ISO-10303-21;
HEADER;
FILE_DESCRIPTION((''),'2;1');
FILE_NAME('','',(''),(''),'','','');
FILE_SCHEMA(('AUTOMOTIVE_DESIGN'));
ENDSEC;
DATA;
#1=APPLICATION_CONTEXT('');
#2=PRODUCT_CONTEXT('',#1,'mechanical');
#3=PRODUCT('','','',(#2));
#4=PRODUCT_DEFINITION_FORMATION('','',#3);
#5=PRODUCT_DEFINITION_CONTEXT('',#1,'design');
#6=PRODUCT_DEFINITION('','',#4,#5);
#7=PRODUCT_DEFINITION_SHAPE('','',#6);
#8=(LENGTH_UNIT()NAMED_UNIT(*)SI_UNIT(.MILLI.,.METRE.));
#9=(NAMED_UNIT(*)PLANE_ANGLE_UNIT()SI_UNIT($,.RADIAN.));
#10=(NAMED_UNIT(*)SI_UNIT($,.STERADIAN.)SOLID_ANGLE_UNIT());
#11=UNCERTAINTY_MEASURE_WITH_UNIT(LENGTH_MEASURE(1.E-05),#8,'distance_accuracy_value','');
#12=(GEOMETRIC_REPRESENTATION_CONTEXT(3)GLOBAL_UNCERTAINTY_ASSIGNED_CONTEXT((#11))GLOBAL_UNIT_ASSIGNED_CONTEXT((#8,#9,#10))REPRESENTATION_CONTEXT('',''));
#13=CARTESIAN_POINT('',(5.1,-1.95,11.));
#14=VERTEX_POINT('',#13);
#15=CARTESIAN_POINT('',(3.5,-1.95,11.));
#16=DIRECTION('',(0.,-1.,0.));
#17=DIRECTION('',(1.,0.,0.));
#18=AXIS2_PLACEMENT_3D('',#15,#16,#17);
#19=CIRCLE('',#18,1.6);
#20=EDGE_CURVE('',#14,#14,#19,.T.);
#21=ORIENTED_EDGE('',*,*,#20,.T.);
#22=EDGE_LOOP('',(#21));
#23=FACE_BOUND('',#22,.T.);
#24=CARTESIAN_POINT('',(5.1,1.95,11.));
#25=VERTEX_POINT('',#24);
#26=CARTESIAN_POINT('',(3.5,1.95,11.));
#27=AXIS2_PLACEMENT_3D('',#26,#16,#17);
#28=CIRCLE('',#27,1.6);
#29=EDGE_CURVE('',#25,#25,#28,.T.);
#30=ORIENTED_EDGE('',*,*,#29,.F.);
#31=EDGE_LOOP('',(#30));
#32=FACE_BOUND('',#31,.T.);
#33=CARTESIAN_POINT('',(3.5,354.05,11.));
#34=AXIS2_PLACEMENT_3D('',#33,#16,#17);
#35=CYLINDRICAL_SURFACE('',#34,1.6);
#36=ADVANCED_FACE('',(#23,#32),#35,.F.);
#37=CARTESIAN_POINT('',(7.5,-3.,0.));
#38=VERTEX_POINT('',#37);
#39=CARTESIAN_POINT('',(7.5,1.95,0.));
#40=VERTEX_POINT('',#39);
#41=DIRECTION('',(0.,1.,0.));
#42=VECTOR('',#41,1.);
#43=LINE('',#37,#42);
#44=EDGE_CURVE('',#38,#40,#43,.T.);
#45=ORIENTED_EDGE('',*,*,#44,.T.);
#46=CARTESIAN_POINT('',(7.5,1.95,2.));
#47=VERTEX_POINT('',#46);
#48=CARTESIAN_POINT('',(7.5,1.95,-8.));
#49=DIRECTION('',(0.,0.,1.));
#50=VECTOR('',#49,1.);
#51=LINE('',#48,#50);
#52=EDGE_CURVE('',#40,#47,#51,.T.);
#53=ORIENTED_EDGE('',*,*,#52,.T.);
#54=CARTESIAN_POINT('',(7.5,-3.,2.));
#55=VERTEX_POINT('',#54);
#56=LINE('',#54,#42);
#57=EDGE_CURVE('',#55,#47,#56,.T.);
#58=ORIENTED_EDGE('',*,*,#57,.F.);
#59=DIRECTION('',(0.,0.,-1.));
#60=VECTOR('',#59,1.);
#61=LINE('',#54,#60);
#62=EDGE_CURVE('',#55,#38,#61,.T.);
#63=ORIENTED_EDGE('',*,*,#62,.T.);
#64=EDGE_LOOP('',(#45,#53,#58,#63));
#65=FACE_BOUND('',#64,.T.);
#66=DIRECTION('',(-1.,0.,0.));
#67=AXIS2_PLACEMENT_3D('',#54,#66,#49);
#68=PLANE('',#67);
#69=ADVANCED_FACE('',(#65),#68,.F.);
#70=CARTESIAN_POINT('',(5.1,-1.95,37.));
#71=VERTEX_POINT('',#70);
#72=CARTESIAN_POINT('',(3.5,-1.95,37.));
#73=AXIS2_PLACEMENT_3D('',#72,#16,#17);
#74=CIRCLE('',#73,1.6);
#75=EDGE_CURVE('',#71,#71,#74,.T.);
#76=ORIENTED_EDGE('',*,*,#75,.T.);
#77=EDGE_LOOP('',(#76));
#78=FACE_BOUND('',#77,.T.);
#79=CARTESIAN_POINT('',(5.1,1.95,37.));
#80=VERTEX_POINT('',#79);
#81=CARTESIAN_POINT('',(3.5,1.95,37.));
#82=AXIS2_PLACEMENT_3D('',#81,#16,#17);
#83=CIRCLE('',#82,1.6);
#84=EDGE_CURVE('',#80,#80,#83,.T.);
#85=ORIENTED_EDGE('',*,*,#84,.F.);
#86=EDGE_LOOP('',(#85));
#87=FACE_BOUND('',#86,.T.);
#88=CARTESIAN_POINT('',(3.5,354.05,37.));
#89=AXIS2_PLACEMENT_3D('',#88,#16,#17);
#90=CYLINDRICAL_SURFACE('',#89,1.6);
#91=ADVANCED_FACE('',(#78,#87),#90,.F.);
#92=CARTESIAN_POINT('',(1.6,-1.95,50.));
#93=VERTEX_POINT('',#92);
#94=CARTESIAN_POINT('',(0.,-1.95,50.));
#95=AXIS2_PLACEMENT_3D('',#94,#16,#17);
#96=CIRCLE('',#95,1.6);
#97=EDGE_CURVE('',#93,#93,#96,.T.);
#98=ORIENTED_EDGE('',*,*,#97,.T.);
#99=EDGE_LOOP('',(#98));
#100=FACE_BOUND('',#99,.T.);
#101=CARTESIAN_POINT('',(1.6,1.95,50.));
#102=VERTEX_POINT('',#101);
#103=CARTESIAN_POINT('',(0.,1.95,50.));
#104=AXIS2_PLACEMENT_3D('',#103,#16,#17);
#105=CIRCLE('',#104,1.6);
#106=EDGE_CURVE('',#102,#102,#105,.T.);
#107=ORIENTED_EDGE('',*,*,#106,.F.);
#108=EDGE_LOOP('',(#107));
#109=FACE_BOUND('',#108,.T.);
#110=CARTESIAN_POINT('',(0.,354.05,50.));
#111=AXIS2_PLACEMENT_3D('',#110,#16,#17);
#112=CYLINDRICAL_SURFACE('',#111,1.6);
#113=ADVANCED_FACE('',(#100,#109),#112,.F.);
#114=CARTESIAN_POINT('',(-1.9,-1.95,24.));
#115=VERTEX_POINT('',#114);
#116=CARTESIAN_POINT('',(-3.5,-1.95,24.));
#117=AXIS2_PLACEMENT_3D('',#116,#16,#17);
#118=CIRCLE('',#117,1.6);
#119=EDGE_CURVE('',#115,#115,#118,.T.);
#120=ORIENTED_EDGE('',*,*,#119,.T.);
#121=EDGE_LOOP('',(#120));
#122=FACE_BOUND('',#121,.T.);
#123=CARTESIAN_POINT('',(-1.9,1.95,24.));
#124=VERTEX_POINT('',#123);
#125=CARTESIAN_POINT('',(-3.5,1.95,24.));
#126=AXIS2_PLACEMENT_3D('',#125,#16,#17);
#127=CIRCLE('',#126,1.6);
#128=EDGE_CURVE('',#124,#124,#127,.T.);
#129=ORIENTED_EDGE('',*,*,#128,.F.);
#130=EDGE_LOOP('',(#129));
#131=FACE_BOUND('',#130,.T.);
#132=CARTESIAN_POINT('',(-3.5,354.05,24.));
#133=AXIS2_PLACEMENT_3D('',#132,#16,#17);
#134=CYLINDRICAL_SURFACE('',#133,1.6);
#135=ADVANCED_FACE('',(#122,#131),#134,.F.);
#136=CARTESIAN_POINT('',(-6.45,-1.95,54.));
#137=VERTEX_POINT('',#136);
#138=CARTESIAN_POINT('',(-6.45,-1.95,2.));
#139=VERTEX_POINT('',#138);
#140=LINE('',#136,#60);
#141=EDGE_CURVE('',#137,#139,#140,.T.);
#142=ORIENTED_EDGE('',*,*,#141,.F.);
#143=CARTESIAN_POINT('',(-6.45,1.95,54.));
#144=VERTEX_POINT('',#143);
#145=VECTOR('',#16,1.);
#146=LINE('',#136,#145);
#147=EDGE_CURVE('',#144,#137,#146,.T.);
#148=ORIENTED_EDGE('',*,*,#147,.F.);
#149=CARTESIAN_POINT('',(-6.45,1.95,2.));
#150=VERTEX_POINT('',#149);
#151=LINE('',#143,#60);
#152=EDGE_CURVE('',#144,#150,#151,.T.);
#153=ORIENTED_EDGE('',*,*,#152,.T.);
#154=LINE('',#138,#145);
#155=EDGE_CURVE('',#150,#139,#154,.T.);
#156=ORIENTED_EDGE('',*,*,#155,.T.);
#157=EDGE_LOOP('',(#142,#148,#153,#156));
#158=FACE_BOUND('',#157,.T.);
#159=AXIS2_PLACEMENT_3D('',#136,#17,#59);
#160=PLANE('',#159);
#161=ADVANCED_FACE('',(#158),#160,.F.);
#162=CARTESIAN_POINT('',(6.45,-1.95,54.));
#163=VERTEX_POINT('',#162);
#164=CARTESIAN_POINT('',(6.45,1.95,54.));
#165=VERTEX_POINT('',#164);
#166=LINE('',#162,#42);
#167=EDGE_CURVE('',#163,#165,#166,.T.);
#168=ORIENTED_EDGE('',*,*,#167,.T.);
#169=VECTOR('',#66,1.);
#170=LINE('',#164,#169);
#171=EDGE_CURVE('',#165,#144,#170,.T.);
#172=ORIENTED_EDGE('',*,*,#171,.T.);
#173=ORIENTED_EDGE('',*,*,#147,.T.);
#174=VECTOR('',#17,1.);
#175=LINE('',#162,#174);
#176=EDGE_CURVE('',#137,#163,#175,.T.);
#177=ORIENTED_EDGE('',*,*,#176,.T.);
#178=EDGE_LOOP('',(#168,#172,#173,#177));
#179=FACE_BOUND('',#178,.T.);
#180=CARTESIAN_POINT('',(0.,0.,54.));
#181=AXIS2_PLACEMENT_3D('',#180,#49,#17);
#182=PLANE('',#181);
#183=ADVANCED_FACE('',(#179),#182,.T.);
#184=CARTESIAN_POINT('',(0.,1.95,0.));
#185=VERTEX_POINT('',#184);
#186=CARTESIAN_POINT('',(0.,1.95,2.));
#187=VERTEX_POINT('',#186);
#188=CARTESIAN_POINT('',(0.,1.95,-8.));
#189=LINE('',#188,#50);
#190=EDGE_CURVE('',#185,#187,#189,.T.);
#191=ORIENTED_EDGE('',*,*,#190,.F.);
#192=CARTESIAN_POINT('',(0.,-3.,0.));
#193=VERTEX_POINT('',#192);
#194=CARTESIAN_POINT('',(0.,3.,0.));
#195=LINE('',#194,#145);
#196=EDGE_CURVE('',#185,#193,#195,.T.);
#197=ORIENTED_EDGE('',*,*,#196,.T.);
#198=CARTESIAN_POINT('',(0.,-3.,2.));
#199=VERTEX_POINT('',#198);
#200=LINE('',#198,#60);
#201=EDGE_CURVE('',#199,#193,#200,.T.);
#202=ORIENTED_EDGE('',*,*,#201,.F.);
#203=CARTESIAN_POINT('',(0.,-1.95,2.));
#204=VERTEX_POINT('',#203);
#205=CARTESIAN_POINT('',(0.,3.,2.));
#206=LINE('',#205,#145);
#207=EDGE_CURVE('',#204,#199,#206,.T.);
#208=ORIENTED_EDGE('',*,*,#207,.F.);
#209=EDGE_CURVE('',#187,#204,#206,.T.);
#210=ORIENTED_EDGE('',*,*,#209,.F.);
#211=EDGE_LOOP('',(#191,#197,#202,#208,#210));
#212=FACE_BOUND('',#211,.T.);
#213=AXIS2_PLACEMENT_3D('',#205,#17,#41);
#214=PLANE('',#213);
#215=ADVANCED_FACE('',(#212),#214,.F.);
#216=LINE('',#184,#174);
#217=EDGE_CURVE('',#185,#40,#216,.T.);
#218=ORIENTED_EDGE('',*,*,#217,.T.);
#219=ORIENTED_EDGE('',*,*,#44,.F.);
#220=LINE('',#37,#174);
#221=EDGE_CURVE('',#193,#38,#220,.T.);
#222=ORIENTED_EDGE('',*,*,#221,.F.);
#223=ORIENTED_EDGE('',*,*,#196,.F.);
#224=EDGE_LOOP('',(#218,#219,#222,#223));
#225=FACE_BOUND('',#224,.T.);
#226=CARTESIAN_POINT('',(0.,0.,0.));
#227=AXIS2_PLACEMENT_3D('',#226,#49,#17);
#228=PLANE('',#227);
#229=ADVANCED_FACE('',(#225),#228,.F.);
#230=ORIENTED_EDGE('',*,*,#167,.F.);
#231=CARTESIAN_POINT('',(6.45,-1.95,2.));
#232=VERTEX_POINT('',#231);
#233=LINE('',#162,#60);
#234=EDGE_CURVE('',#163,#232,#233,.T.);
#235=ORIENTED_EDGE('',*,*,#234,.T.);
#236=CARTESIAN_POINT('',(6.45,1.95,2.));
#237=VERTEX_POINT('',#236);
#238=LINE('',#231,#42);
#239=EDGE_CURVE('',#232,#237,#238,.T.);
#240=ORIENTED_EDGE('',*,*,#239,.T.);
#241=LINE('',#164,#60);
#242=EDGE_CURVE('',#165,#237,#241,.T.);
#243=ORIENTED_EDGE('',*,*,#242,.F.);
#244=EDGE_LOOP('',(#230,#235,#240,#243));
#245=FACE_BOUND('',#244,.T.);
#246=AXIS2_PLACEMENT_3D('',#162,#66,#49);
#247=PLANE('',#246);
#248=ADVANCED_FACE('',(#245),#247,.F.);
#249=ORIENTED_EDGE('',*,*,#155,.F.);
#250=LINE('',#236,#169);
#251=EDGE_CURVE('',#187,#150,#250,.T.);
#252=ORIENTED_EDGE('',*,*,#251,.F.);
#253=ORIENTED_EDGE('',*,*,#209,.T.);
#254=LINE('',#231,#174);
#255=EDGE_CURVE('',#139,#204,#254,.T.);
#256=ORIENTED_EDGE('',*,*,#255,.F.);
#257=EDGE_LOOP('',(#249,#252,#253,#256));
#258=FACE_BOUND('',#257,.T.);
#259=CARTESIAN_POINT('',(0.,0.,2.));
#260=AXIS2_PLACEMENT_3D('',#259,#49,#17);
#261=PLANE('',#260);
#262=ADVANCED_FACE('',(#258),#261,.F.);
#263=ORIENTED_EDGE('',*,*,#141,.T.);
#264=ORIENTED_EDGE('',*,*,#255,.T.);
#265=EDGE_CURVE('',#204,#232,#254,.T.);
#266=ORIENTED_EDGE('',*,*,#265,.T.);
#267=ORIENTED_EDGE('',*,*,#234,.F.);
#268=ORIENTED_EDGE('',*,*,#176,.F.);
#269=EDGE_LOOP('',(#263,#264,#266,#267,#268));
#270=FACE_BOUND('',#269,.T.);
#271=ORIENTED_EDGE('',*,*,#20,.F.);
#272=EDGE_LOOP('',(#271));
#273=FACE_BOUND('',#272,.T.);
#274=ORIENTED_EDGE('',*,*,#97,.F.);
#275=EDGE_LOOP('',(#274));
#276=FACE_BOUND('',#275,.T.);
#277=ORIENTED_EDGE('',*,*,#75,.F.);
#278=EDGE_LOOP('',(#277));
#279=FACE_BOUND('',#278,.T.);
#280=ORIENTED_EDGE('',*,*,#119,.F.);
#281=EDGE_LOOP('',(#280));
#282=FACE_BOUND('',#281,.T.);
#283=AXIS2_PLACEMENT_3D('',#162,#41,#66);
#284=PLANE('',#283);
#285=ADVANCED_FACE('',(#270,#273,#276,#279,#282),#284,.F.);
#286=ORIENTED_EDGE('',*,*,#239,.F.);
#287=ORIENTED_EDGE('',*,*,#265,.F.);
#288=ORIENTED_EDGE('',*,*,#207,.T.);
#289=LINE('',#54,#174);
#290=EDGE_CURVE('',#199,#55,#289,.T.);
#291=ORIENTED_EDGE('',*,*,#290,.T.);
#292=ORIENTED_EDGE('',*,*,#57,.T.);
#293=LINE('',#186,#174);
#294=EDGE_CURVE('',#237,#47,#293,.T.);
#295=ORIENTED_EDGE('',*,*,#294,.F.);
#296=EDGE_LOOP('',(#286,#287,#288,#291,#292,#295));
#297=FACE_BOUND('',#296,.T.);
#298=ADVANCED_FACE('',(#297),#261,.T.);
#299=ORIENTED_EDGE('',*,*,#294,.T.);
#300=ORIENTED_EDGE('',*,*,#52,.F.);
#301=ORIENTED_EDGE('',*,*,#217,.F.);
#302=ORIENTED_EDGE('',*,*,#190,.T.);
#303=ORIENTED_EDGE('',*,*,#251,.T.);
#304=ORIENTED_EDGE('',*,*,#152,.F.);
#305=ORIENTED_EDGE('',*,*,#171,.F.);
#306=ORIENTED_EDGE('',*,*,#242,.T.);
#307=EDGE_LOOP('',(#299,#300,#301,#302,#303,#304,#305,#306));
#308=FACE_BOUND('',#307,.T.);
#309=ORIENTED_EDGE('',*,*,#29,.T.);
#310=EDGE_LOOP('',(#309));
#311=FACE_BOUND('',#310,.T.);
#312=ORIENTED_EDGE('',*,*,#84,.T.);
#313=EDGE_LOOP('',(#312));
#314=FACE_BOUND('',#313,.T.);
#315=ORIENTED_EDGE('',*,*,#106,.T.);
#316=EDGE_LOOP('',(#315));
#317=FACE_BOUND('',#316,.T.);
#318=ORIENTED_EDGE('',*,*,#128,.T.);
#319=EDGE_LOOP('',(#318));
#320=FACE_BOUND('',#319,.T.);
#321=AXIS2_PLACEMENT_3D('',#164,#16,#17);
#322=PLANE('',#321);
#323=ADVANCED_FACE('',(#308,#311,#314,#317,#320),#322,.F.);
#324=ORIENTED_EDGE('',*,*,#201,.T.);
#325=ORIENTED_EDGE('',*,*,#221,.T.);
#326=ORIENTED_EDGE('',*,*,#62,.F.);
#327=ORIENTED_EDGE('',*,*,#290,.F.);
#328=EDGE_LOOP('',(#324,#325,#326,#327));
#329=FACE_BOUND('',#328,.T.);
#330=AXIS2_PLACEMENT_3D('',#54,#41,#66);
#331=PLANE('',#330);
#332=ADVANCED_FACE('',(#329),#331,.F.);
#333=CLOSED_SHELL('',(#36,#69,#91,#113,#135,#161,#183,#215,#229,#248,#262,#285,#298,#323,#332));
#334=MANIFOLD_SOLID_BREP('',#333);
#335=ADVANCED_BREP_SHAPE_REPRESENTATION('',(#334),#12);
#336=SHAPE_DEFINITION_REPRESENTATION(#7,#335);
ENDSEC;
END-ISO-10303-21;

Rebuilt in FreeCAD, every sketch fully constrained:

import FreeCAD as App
import Part
import Sketcher

V = App.Vector

doc = App.newDocument("Part")
body = doc.addObject("PartDesign::Body", "Body")

# Sketch on XY plane
sketch1 = body.newObject("Sketcher::SketchObject", "Sketch")
sketch1.AttachmentSupport = (doc.getObject("XY_Plane"), [""])
sketch1.MapMode = "FlatFace"
sketch1.addGeometry([
    Part.LineSegment(V(0, 3, 0), V(0, -3, 0)),
    Part.LineSegment(V(0, -3, 0), V(8, -3, 0)),
    Part.LineSegment(V(8, -3, 0), V(8, 3, 0)),
    Part.LineSegment(V(8, 3, 0), V(0, 3, 0)),
], False)
sketch1.addConstraint([
    Sketcher.Constraint("Coincident", 0, 2, 1, 1),
    Sketcher.Constraint("Coincident", 1, 2, 2, 1),
    Sketcher.Constraint("Coincident", 2, 2, 3, 1),
    Sketcher.Constraint("Coincident", 3, 2, 0, 1),
    Sketcher.Constraint("Vertical", 0),
    Sketcher.Constraint("Horizontal", 1),
    Sketcher.Constraint("Vertical", 2),
    Sketcher.Constraint("Horizontal", 3),
    Sketcher.Constraint("Symmetric", 0, 2, 3, 2, -1, 1),
    Sketcher.Constraint("DistanceY", 0, 2, 0, 1, 6.0),
    Sketcher.Constraint("DistanceX", 1, 1, 1, 2, 7.5),
])
pad1 = body.newObject("PartDesign::Pad", "Pad")
pad1.Profile = sketch1
pad1.Length = 2

# Sketch on XY plane
sketch2 = body.newObject("Sketcher::SketchObject", "Sketch001")
sketch2.AttachmentSupport = (doc.getObject("XY_Plane"), [""])
sketch2.MapMode = "FlatFace"
sketch2.AttachmentOffset = App.Placement(V(0, 0, 2), App.Rotation())
sketch2.addGeometry([
    Part.LineSegment(V(-6.5, 1.9, 0), V(-6.5, -1.9, 0)),
    Part.LineSegment(V(-6.5, -1.9, 0), V(6.5, -1.9, 0)),
    Part.LineSegment(V(6.5, -1.9, 0), V(6.5, 1.9, 0)),
    Part.LineSegment(V(6.5, 1.9, 0), V(-6.5, 1.9, 0)),
], False)
sketch2.addConstraint([
    Sketcher.Constraint("Coincident", 0, 2, 1, 1),
    Sketcher.Constraint("Coincident", 1, 2, 2, 1),
    Sketcher.Constraint("Coincident", 2, 2, 3, 1),
    Sketcher.Constraint("Coincident", 3, 2, 0, 1),
    Sketcher.Constraint("Vertical", 0),
    Sketcher.Constraint("Horizontal", 1),
    Sketcher.Constraint("Vertical", 2),
    Sketcher.Constraint("Horizontal", 3),
    Sketcher.Constraint("Symmetric", 0, 2, 2, 2, -1, 1),
    Sketcher.Constraint("DistanceX", 1, 1, 1, 2, 12.9),
    Sketcher.Constraint("DistanceY", 0, 2, 0, 1, 3.9),
])
pad2 = body.newObject("PartDesign::Pad", "Pad001")
pad2.Profile = sketch2
pad2.Length = 52

# Sketch on XZ plane
sketch3 = body.newObject("Sketcher::SketchObject", "Sketch002")
sketch3.AttachmentSupport = (doc.getObject("XZ_Plane"), [""])
sketch3.MapMode = "FlatFace"
sketch3.AttachmentOffset = App.Placement(V(0, 0, 1.95), App.Rotation())
sketch3.addGeometry([
    Part.Circle(V(3.5, 37, 0), V(0, 0, 1), 1.6),
    Part.Circle(V(3.5, 11, 0), V(0, 0, 1), 1.6),
    Part.Circle(V(-3.5, 24, 0), V(0, 0, 1), 1.6),
    Part.Circle(V(0, 50, 0), V(0, 0, 1), 1.6),
], False)
sketch3.addConstraint([
    Sketcher.Constraint("Equal", 0, 1),
    Sketcher.Constraint("Equal", 1, 2),
    Sketcher.Constraint("Equal", 2, 3),
    Sketcher.Constraint("PointOnObject", 3, 3, -2),
    Sketcher.Constraint("Vertical", 0, 3, 1, 3),
    Sketcher.Constraint("Diameter", 0, 3.2),
    Sketcher.Constraint("DistanceY", -1, 1, 0, 3, 37.0),
    Sketcher.Constraint("DistanceY", -1, 1, 1, 3, 11.0),
    Sketcher.Constraint("DistanceY", -1, 1, 2, 3, 24.0),
    Sketcher.Constraint("DistanceY", -1, 1, 3, 3, 50.0),
    Sketcher.Constraint("DistanceX", 2, 3, 0, 3, 7.0),
    Sketcher.Constraint("DistanceX", -1, 1, 0, 3, 3.5),
])
pocket1 = body.newObject("PartDesign::Pocket", "Pocket")
pocket1.Profile = sketch3
pocket1.Length = 356

# Sketch on XY plane
sketch4 = body.newObject("Sketcher::SketchObject", "Sketch003")
sketch4.AttachmentSupport = (doc.getObject("XY_Plane"), [""])
sketch4.MapMode = "FlatFace"
sketch4.AttachmentOffset = App.Placement(V(0, 0, 2), App.Rotation())
sketch4.addGeometry([
    Part.LineSegment(V(0, 3, 0), V(0, 1.9, 0)),
    Part.LineSegment(V(0, 1.9, 0), V(7.5, 1.9, 0)),
    Part.LineSegment(V(7.5, 1.9, 0), V(7.5, 3, 0)),
    Part.LineSegment(V(7.5, 3, 0), V(0, 3, 0)),
], False)
sketch4.addConstraint([
    Sketcher.Constraint("Coincident", 0, 2, 1, 1),
    Sketcher.Constraint("Coincident", 1, 2, 2, 1),
    Sketcher.Constraint("Coincident", 2, 2, 3, 1),
    Sketcher.Constraint("Coincident", 3, 2, 0, 1),
    Sketcher.Constraint("Vertical", 0),
    Sketcher.Constraint("Horizontal", 1),
    Sketcher.Constraint("Vertical", 2),
    Sketcher.Constraint("Horizontal", 3),
    Sketcher.Constraint("PointOnObject", 0, 2, -2),
    Sketcher.Constraint("DistanceX", 1, 1, 1, 2, 7.5),
    Sketcher.Constraint("DistanceY", -1, 1, 2, 2, 3.0),
    Sketcher.Constraint("DistanceY", 0, 2, 0, 1, 1.05),
])
pocket2 = body.newObject("PartDesign::Pocket", "Pocket001")
pocket2.Profile = sketch4
pocket2.Length = 10

doc.recompute()
